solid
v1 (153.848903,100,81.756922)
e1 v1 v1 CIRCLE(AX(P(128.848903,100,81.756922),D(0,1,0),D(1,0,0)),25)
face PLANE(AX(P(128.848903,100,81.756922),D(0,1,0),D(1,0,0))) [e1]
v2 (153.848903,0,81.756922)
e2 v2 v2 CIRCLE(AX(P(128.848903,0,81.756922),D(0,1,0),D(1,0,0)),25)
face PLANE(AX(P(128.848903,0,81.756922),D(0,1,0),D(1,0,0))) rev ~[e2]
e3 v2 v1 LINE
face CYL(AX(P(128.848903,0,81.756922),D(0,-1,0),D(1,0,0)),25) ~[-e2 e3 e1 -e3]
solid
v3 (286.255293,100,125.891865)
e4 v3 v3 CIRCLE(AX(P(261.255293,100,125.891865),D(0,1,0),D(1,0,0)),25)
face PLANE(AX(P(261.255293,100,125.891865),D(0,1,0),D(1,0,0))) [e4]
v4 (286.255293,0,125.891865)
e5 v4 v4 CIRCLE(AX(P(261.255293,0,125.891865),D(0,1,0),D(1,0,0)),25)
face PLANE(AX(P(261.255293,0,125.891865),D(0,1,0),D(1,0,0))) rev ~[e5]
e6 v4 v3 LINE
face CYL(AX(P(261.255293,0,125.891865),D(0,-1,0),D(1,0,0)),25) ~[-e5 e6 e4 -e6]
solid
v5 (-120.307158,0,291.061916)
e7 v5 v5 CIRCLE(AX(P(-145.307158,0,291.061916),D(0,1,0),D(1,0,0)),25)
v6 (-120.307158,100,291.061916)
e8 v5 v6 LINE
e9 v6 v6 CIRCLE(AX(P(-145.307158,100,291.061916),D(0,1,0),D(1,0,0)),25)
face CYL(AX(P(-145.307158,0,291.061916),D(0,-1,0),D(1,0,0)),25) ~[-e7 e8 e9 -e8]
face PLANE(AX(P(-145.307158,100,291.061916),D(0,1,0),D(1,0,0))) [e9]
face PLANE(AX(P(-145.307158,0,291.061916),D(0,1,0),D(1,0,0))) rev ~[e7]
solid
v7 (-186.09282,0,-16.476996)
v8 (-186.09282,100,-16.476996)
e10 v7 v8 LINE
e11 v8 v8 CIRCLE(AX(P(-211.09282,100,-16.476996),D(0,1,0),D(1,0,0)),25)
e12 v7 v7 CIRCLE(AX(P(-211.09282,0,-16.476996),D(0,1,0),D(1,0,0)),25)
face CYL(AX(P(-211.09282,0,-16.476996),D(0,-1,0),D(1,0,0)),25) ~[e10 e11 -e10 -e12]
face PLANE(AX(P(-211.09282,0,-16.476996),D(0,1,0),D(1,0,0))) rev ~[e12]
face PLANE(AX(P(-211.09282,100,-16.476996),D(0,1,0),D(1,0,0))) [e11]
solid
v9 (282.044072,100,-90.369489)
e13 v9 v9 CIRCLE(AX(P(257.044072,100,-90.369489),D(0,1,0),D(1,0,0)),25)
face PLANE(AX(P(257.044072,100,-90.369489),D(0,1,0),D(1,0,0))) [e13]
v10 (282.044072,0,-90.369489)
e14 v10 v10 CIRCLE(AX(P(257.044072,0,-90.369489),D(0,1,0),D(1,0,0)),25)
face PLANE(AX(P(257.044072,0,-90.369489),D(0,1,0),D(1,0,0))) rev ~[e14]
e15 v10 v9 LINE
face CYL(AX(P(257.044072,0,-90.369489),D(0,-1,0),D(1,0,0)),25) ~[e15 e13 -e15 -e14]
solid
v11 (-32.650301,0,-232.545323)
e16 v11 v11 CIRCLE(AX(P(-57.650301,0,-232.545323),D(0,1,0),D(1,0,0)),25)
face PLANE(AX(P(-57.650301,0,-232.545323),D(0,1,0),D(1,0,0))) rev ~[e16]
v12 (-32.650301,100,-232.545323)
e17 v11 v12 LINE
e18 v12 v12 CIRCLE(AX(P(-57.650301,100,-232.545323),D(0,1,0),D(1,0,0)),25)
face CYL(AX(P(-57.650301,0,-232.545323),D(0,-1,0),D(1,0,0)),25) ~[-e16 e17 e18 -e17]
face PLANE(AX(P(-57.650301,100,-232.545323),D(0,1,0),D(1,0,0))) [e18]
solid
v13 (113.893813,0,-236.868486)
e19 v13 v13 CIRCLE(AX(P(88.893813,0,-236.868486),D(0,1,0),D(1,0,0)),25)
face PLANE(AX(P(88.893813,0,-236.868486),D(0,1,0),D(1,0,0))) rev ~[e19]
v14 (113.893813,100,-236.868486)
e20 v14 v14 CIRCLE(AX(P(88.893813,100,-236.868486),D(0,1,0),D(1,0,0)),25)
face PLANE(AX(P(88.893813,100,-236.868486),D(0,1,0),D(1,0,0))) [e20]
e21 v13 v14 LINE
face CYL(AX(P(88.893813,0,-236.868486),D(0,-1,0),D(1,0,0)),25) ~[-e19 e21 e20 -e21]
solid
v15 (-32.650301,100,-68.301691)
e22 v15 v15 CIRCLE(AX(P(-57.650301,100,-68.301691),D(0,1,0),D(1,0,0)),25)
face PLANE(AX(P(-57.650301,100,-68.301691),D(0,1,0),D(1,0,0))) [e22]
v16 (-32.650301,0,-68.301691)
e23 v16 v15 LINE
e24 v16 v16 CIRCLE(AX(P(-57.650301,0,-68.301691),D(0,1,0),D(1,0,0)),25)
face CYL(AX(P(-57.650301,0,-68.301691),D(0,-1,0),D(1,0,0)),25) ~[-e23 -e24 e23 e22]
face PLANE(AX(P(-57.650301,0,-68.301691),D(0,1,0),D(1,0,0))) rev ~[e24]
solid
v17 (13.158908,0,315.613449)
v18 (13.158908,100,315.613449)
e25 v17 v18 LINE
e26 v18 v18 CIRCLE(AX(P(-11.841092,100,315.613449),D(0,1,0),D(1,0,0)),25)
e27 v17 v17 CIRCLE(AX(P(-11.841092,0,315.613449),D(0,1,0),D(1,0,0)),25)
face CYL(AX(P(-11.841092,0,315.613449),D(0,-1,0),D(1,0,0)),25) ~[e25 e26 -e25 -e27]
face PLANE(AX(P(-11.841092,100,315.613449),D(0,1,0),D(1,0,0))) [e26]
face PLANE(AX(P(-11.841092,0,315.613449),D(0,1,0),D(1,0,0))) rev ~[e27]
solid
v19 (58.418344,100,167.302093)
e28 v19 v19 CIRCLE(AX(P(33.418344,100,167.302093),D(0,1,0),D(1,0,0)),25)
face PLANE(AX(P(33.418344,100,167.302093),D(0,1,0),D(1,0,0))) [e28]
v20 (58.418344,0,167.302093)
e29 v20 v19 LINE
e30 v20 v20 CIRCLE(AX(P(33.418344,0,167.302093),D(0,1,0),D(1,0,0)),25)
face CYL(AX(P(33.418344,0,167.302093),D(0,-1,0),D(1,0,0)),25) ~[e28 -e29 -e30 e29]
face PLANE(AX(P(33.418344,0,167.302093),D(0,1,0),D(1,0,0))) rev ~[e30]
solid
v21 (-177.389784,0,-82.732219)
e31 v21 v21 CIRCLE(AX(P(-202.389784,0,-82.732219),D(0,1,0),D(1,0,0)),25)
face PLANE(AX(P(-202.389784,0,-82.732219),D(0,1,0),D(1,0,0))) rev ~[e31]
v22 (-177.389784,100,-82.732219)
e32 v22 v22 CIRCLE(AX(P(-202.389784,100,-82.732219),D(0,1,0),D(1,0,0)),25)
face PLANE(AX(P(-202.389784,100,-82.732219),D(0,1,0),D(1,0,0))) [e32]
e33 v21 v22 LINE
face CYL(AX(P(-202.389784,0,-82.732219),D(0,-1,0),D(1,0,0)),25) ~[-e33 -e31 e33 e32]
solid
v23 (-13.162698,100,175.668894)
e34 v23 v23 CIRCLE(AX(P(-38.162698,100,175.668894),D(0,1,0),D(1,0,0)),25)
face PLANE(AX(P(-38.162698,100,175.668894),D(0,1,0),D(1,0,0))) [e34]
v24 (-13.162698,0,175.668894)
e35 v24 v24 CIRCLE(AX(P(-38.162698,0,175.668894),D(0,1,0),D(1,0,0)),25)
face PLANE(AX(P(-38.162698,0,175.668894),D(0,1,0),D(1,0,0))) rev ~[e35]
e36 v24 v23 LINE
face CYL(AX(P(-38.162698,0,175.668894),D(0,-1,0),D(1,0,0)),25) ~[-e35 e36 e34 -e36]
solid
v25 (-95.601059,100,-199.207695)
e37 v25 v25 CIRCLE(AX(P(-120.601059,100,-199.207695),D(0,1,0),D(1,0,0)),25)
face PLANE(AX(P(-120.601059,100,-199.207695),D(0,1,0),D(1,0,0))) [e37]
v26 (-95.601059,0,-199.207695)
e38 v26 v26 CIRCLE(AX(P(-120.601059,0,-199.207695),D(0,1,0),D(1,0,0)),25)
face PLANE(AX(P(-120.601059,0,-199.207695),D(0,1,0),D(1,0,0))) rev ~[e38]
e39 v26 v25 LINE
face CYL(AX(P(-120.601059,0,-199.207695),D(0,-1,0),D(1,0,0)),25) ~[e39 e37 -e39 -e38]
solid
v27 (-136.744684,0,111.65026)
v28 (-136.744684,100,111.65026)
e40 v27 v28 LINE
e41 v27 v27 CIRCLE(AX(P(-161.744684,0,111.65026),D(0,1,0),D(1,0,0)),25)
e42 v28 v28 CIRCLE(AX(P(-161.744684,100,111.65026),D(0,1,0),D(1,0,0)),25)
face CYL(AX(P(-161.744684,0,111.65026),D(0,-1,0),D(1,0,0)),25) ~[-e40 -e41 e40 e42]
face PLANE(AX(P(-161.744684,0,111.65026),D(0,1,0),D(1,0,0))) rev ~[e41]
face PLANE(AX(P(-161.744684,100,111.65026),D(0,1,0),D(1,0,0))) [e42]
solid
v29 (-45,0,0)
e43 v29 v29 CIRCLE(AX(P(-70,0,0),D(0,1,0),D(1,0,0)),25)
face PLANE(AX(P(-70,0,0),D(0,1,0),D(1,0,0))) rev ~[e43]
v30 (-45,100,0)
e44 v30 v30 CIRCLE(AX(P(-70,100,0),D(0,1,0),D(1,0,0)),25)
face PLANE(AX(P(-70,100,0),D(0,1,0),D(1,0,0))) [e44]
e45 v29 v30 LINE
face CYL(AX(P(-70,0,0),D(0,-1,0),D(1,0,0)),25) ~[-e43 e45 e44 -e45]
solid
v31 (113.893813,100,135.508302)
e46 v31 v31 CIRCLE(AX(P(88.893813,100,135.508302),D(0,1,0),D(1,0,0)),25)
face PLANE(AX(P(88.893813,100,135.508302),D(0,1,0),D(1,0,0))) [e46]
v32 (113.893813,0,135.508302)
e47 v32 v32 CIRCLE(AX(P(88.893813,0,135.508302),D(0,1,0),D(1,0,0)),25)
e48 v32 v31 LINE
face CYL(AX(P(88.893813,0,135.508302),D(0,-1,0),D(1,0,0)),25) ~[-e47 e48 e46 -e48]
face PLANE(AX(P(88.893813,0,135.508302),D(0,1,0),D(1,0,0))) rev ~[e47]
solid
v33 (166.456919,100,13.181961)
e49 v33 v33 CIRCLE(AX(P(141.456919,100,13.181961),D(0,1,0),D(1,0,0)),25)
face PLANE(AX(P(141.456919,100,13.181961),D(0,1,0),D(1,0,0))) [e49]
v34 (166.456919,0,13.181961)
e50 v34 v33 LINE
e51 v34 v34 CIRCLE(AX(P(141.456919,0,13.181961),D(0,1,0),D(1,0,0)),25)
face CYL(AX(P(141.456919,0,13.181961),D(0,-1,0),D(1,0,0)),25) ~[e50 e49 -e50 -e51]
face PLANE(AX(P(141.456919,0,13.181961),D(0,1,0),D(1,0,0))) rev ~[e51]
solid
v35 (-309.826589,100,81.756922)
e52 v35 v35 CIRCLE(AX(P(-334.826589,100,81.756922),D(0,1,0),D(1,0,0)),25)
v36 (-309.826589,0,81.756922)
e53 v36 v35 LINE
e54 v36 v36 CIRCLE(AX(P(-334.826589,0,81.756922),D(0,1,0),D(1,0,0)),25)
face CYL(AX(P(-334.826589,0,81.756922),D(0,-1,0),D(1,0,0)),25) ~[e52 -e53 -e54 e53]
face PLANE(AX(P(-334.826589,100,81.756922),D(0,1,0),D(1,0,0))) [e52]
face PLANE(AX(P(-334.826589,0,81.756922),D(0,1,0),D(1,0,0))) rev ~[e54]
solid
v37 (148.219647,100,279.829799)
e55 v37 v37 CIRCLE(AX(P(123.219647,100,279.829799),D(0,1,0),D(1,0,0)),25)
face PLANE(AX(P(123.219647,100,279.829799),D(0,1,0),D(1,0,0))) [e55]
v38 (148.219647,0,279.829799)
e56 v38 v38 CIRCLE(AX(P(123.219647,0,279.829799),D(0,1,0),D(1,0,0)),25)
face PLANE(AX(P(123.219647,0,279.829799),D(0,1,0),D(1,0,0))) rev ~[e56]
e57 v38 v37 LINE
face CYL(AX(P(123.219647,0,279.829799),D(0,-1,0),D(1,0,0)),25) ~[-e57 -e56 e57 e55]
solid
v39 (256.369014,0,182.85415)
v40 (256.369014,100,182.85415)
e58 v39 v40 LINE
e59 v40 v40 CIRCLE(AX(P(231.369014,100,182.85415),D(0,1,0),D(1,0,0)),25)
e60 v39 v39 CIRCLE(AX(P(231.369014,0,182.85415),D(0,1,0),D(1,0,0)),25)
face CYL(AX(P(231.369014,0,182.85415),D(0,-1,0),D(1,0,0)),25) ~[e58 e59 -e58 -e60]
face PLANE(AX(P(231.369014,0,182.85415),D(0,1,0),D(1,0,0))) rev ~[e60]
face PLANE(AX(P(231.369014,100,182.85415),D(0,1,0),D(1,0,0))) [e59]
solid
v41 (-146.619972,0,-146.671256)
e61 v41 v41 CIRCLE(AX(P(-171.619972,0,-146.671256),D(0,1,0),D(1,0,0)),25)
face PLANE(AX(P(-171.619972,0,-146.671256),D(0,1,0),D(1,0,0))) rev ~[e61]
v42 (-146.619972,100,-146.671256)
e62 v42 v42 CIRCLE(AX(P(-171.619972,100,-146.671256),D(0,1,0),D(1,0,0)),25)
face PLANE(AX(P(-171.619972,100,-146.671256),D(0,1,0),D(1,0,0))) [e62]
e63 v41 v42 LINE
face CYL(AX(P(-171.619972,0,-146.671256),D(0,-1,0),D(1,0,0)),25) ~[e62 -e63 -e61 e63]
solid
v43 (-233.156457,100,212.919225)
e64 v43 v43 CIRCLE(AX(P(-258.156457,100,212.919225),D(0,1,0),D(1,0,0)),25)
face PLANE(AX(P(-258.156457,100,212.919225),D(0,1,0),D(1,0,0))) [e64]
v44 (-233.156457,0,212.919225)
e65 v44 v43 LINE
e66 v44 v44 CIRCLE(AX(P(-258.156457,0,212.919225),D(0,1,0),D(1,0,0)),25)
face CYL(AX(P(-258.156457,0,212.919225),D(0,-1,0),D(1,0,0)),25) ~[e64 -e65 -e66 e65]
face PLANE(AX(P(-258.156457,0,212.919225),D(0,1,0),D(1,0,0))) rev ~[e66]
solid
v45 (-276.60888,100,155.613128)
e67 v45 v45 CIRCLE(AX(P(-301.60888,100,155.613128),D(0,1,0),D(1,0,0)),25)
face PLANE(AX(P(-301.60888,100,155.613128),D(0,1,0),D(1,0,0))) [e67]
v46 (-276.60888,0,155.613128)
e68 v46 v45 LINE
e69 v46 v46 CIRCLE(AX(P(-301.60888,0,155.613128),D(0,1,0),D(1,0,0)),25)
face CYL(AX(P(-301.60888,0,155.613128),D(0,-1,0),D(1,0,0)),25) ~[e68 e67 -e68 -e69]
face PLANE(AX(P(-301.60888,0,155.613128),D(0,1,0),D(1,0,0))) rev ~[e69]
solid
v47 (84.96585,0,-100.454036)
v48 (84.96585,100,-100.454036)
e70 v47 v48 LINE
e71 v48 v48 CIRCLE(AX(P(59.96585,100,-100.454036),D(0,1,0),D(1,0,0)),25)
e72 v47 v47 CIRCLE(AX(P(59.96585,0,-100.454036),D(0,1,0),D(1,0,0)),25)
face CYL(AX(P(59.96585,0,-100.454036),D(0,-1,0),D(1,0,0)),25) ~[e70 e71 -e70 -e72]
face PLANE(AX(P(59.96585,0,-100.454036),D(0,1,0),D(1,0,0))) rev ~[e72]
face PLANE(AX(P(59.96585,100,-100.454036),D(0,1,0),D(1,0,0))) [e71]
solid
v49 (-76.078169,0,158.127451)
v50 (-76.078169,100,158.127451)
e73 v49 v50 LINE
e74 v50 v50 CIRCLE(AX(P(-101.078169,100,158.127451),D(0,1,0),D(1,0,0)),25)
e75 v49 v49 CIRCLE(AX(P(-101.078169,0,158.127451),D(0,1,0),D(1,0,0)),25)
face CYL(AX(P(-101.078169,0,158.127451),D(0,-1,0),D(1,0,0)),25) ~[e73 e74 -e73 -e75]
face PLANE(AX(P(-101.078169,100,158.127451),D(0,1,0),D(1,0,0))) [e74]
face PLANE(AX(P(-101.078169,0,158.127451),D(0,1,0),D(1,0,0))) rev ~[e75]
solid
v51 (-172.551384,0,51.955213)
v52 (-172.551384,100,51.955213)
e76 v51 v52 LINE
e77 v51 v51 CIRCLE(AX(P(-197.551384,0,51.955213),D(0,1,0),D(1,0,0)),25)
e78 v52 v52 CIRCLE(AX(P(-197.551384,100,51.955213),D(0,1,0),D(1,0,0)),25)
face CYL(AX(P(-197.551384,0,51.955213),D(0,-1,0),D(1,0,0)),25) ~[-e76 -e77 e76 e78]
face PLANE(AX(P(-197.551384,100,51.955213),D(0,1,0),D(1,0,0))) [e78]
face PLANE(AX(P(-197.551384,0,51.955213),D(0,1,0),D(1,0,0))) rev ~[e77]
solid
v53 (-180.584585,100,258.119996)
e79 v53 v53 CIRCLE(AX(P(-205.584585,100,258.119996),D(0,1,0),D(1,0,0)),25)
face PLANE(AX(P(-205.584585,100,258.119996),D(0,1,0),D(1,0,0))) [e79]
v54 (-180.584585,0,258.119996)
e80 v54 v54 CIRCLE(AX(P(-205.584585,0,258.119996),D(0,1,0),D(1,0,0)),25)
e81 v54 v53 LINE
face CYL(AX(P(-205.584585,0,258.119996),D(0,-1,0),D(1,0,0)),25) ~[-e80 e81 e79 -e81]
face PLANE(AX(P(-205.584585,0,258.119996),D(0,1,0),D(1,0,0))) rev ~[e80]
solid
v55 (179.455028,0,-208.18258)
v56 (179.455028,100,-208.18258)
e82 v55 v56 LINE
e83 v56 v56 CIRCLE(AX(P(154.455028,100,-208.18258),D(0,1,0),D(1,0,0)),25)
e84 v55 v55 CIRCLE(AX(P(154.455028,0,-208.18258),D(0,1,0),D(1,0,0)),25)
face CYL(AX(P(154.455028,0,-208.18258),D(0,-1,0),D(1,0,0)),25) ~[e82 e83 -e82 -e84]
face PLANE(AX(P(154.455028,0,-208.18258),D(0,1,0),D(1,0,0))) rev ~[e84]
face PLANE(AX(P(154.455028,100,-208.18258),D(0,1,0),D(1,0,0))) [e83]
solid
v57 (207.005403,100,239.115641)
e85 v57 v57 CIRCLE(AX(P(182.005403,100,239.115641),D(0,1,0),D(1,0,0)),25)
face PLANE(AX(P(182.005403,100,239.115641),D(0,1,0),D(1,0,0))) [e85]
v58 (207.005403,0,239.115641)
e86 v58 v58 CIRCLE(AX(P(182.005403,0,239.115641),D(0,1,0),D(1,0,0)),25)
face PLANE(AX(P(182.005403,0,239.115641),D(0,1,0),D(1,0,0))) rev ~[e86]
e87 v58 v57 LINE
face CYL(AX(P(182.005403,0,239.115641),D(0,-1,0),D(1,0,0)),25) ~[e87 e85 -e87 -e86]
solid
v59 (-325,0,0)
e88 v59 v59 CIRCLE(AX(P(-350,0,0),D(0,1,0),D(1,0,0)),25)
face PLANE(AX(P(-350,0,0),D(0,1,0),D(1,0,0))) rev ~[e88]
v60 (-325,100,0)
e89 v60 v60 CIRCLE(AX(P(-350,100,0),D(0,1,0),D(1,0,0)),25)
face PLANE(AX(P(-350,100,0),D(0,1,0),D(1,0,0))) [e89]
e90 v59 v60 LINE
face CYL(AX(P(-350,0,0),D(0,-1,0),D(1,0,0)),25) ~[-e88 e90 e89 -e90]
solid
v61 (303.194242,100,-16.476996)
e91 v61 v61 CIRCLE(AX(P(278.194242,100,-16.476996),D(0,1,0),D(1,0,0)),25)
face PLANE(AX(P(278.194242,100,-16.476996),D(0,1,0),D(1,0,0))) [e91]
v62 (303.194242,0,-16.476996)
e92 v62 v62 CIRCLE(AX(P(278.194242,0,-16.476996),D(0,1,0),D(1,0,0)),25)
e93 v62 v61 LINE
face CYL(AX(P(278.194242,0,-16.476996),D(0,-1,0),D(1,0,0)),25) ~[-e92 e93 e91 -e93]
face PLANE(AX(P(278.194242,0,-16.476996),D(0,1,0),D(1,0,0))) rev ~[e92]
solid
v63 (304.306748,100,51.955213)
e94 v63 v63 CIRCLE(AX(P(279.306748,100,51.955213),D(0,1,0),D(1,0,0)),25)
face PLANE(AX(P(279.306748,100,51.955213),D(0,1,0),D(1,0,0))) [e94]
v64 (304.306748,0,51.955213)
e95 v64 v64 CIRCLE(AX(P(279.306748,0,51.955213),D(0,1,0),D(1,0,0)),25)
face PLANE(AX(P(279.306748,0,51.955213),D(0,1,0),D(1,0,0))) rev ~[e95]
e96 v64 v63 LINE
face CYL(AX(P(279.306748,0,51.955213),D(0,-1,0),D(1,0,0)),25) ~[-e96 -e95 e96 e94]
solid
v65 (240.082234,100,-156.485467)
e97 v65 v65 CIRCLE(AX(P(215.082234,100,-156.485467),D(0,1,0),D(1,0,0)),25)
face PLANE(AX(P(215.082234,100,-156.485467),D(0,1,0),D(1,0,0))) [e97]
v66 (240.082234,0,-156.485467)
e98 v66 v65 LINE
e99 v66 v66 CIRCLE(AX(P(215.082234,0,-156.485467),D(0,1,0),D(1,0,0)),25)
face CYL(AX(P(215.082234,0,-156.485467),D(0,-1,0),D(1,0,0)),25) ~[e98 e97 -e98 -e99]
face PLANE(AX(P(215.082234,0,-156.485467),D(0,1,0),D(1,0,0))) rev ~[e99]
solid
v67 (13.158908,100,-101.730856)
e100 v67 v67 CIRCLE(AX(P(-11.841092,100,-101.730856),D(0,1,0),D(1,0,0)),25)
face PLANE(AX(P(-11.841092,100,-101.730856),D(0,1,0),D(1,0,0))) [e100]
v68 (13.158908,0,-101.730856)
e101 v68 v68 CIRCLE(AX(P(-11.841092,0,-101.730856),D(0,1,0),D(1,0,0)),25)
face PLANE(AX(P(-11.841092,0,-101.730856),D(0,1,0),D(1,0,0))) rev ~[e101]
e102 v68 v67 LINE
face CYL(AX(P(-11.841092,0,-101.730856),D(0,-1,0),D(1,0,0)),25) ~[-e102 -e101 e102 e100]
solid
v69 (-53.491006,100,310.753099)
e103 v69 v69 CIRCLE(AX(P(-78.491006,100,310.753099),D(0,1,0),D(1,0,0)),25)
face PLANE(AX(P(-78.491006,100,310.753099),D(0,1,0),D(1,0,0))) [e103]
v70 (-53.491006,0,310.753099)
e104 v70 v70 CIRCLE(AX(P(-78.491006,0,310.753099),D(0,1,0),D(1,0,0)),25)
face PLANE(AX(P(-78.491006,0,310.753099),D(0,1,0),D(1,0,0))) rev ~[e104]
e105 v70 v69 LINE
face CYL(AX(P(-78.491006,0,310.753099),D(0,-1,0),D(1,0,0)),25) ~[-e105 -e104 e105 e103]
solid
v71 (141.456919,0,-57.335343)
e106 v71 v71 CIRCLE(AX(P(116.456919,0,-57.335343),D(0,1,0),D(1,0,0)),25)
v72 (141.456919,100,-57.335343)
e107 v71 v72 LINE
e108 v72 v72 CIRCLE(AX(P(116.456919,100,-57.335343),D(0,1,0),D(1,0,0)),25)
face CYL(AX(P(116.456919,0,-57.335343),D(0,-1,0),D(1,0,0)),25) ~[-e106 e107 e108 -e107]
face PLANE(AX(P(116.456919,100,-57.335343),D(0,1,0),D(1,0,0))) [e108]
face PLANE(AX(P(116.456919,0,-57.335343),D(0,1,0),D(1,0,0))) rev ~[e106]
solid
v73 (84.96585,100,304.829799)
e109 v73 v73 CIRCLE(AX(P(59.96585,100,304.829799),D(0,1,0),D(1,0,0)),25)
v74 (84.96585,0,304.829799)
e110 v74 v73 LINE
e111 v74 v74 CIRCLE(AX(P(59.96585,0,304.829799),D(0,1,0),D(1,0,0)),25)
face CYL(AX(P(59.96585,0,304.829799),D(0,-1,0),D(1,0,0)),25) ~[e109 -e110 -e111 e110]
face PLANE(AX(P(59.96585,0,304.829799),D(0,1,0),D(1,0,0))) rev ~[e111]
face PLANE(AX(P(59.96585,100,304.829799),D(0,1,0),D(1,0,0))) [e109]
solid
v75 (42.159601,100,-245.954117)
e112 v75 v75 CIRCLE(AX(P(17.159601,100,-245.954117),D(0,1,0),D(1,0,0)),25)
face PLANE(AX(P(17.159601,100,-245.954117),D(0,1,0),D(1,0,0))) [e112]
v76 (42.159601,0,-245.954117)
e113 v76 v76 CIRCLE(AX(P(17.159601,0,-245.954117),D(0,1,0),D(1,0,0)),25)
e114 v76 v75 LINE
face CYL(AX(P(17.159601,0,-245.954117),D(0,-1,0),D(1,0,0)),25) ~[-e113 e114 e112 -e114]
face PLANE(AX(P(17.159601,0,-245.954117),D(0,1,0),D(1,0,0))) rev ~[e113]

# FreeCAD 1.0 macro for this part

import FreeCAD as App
import Part
import Sketcher

doc = App.newDocument("Part")
body = doc.addObject("PartDesign::Body", "Body")

# Sketch on XZ plane
sketch1 = body.newObject("Sketcher::SketchObject", "Sketch")
sketch1.AttachmentSupport = (doc.getObject("XZ_Plane"), [""])
sketch1.MapMode = "FlatFace"
sketch1.addGeometry(Part.Circle(App.Vector(-350, 0, 0), App.Vector(0, 0, 1), 25), False)
sketch1.addConstraint([
    Sketcher.Constraint("PointOnObject", 0, 3, -1),
    Sketcher.Constraint("Diameter", 0, 50.0),
    Sketcher.Constraint("DistanceX", 0, 3, -1, 1, 350.0),
])
pad1 = body.newObject("PartDesign::Pad", "Pad")
pad1.Profile = sketch1
pad1.Length = 100
pad1.Reversed = True
body2 = doc.addObject("PartDesign::Body", "Body001")

# Sketch on XZ plane
sketch2 = body2.newObject("Sketcher::SketchObject", "Sketch001")
sketch2.AttachmentSupport = (doc.getObject("XZ_Plane001"), [""])
sketch2.MapMode = "FlatFace"
sketch2.addGeometry(Part.Circle(App.Vector(-70, 0, 0), App.Vector(0, 0, 1), 25), False)
sketch2.addConstraint([
    Sketcher.Constraint("PointOnObject", 0, 3, -1),
    Sketcher.Constraint("Diameter", 0, 50.0),
    Sketcher.Constraint("DistanceX", 0, 3, -1, 1, 70.0),
])
pad2 = body2.newObject("PartDesign::Pad", "Pad001")
pad2.Profile = sketch2
pad2.Length = 100
pad2.Reversed = True
body3 = doc.addObject("PartDesign::Body", "Body002")

# Sketch on XZ plane
sketch3 = body3.newObject("Sketcher::SketchObject", "Sketch002")
sketch3.AttachmentSupport = (doc.getObject("XZ_Plane002"), [""])
sketch3.MapMode = "FlatFace"
sketch3.addGeometry(Part.Circle(App.Vector(-57.650301, -68.301691, 0), App.Vector(0, 0, 1), 25), False)
sketch3.addConstraint([
    Sketcher.Constraint("Diameter", 0, 50.0),
    Sketcher.Constraint("DistanceX", 0, 3, -1, 1, 57.650301),
    Sketcher.Constraint("DistanceY", 0, 3, -1, 1, 68.301691),
])
pad3 = body3.newObject("PartDesign::Pad", "Pad002")
pad3.Profile = sketch3
pad3.Length = 100
pad3.Reversed = True
body4 = doc.addObject("PartDesign::Body", "Body003")

# Sketch on XZ plane
sketch4 = body4.newObject("Sketcher::SketchObject", "Sketch003")
sketch4.AttachmentSupport = (doc.getObject("XZ_Plane003"), [""])
sketch4.MapMode = "FlatFace"
sketch4.addGeometry(Part.Circle(App.Vector(-11.841092, -101.730856, 0), App.Vector(0, 0, 1), 25), False)
sketch4.addConstraint([
    Sketcher.Constraint("Diameter", 0, 50.0),
    Sketcher.Constraint("DistanceX", 0, 3, -1, 1, 11.841092),
    Sketcher.Constraint("DistanceY", 0, 3, -1, 1, 101.730856),
])
pad4 = body4.newObject("PartDesign::Pad", "Pad003")
pad4.Profile = sketch4
pad4.Length = 100
pad4.Reversed = True
body5 = doc.addObject("PartDesign::Body", "Body004")

# Sketch on XZ plane
sketch5 = body5.newObject("Sketcher::SketchObject", "Sketch004")
sketch5.AttachmentSupport = (doc.getObject("XZ_Plane004"), [""])
sketch5.MapMode = "FlatFace"
sketch5.addGeometry(Part.Circle(App.Vector(59.96585, -100.454036, 0), App.Vector(0, 0, 1), 25), False)
sketch5.addConstraint([
    Sketcher.Constraint("Diameter", 0, 50.0),
    Sketcher.Constraint("DistanceX", -1, 1, 0, 3, 59.96585),
    Sketcher.Constraint("DistanceY", 0, 3, -1, 1, 100.454036),
])
pad5 = body5.newObject("PartDesign::Pad", "Pad004")
pad5.Profile = sketch5
pad5.Length = 100
pad5.Reversed = True
body6 = doc.addObject("PartDesign::Body", "Body005")

# Sketch on XZ plane
sketch6 = body6.newObject("Sketcher::SketchObject", "Sketch005")
sketch6.AttachmentSupport = (doc.getObject("XZ_Plane005"), [""])
sketch6.MapMode = "FlatFace"
sketch6.addGeometry(Part.Circle(App.Vector(116.456919, -57.335343, 0), App.Vector(0, 0, 1), 25), False)
sketch6.addConstraint([
    Sketcher.Constraint("Diameter", 0, 50.0),
    Sketcher.Constraint("DistanceX", -1, 1, 0, 3, 116.456919),
    Sketcher.Constraint("DistanceY", 0, 3, -1, 1, 57.335343),
])
pad6 = body6.newObject("PartDesign::Pad", "Pad005")
pad6.Profile = sketch6
pad6.Length = 100
pad6.Reversed = True
body7 = doc.addObject("PartDesign::Body", "Body006")

# Sketch on XZ plane
sketch7 = body7.newObject("Sketcher::SketchObject", "Sketch006")
sketch7.AttachmentSupport = (doc.getObject("XZ_Plane006"), [""])
sketch7.MapMode = "FlatFace"
sketch7.addGeometry(Part.Circle(App.Vector(141.456919, 13.181961, 0), App.Vector(0, 0, 1), 25), False)
sketch7.addConstraint([
    Sketcher.Constraint("Diameter", 0, 50.0),
    Sketcher.Constraint("DistanceX", -1, 1, 0, 3, 141.456919),
    Sketcher.Constraint("DistanceY", -1, 1, 0, 3, 13.181961),
])
pad7 = body7.newObject("PartDesign::Pad", "Pad006")
pad7.Profile = sketch7
pad7.Length = 100
pad7.Reversed = True
body8 = doc.addObject("PartDesign::Body", "Body007")

# Sketch on XZ plane
sketch8 = body8.newObject("Sketcher::SketchObject", "Sketch007")
sketch8.AttachmentSupport = (doc.getObject("XZ_Plane007"), [""])
sketch8.MapMode = "FlatFace"
sketch8.addGeometry(Part.Circle(App.Vector(128.848903, 81.756922, 0), App.Vector(0, 0, 1), 25), False)
sketch8.addConstraint([
    Sketcher.Constraint("Diameter", 0, 50.0),
    Sketcher.Constraint("DistanceX", -1, 1, 0, 3, 128.848903),
    Sketcher.Constraint("DistanceY", -1, 1, 0, 3, 81.756922),
])
pad8 = body8.newObject("PartDesign::Pad", "Pad007")
pad8.Profile = sketch8
pad8.Length = 100
pad8.Reversed = True
body9 = doc.addObject("PartDesign::Body", "Body008")

# Sketch on XZ plane
sketch9 = body9.newObject("Sketcher::SketchObject", "Sketch008")
sketch9.AttachmentSupport = (doc.getObject("XZ_Plane008"), [""])
sketch9.MapMode = "FlatFace"
sketch9.addGeometry(Part.Circle(App.Vector(88.893813, 135.508302, 0), App.Vector(0, 0, 1), 25), False)
sketch9.addConstraint([
    Sketcher.Constraint("Diameter", 0, 50.0),
    Sketcher.Constraint("DistanceX", -1, 1, 0, 3, 88.893813),
    Sketcher.Constraint("DistanceY", -1, 1, 0, 3, 135.508302),
])
pad9 = body9.newObject("PartDesign::Pad", "Pad008")
pad9.Profile = sketch9
pad9.Length = 100
pad9.Reversed = True
body10 = doc.addObject("PartDesign::Body", "Body009")

# Sketch on XZ plane
sketch10 = body10.newObject("Sketcher::SketchObject", "Sketch009")
sketch10.AttachmentSupport = (doc.getObject("XZ_Plane009"), [""])
sketch10.MapMode = "FlatFace"
sketch10.addGeometry(Part.Circle(App.Vector(33.418344, 167.302093, 0), App.Vector(0, 0, 1), 25), False)
sketch10.addConstraint([
    Sketcher.Constraint("Diameter", 0, 50.0),
    Sketcher.Constraint("DistanceX", -1, 1, 0, 3, 33.418344),
    Sketcher.Constraint("DistanceY", -1, 1, 0, 3, 167.302093),
])
pad10 = body10.newObject("PartDesign::Pad", "Pad009")
pad10.Profile = sketch10
pad10.Length = 100
pad10.Reversed = True
body11 = doc.addObject("PartDesign::Body", "Body010")

# Sketch on XZ plane
sketch11 = body11.newObject("Sketcher::SketchObject", "Sketch010")
sketch11.AttachmentSupport = (doc.getObject("XZ_Plane010"), [""])
sketch11.MapMode = "FlatFace"
sketch11.addGeometry(Part.Circle(App.Vector(-38.162698, 175.668894, 0), App.Vector(0, 0, 1), 25), False)
sketch11.addConstraint([
    Sketcher.Constraint("Diameter", 0, 50.0),
    Sketcher.Constraint("DistanceX", 0, 3, -1, 1, 38.162698),
    Sketcher.Constraint("DistanceY", -1, 1, 0, 3, 175.668894),
])
pad11 = body11.newObject("PartDesign::Pad", "Pad010")
pad11.Profile = sketch11
pad11.Length = 100
pad11.Reversed = True
body12 = doc.addObject("PartDesign::Body", "Body011")

# Sketch on XZ plane
sketch12 = body12.newObject("Sketcher::SketchObject", "Sketch011")
sketch12.AttachmentSupport = (doc.getObject("XZ_Plane011"), [""])
sketch12.MapMode = "FlatFace"
sketch12.addGeometry(Part.Circle(App.Vector(-101.078169, 158.127451, 0), App.Vector(0, 0, 1), 25), False)
sketch12.addConstraint([
    Sketcher.Constraint("Diameter", 0, 50.0),
    Sketcher.Constraint("DistanceX", 0, 3, -1, 1, 101.078169),
    Sketcher.Constraint("DistanceY", -1, 1, 0, 3, 158.127451),
])
pad12 = body12.newObject("PartDesign::Pad", "Pad011")
pad12.Profile = sketch12
pad12.Length = 100
pad12.Reversed = True
body13 = doc.addObject("PartDesign::Body", "Body012")

# Sketch on XZ plane
sketch13 = body13.newObject("Sketcher::SketchObject", "Sketch012")
sketch13.AttachmentSupport = (doc.getObject("XZ_Plane012"), [""])
sketch13.MapMode = "FlatFace"
sketch13.addGeometry(Part.Circle(App.Vector(-161.744684, 111.65026, 0), App.Vector(0, 0, 1), 25), False)
sketch13.addConstraint([
    Sketcher.Constraint("Diameter", 0, 50.0),
    Sketcher.Constraint("DistanceY", -1, 1, 0, 3, 111.65026),
    Sketcher.Constraint("DistanceX", 0, 3, -1, 1, 161.744684),
])
pad13 = body13.newObject("PartDesign::Pad", "Pad012")
pad13.Profile = sketch13
pad13.Length = 100
pad13.Reversed = True
body14 = doc.addObject("PartDesign::Body", "Body013")

# Sketch on XZ plane
sketch14 = body14.newObject("Sketcher::SketchObject", "Sketch013")
sketch14.AttachmentSupport = (doc.getObject("XZ_Plane013"), [""])
sketch14.MapMode = "FlatFace"
sketch14.addGeometry(Part.Circle(App.Vector(-197.551384, 51.955213, 0), App.Vector(0, 0, 1), 25), False)
sketch14.addConstraint([
    Sketcher.Constraint("Diameter", 0, 50.0),
    Sketcher.Constraint("DistanceX", 0, 3, -1, 1, 197.551384),
    Sketcher.Constraint("DistanceY", -1, 1, 0, 3, 51.955213),
])
pad14 = body14.newObject("PartDesign::Pad", "Pad013")
pad14.Profile = sketch14
pad14.Length = 100
pad14.Reversed = True
body15 = doc.addObject("PartDesign::Body", "Body014")

# Sketch on XZ plane
sketch15 = body15.newObject("Sketcher::SketchObject", "Sketch014")
sketch15.AttachmentSupport = (doc.getObject("XZ_Plane014"), [""])
sketch15.MapMode = "FlatFace"
sketch15.addGeometry(Part.Circle(App.Vector(-211.09282, -16.476996, 0), App.Vector(0, 0, 1), 25), False)
sketch15.addConstraint([
    Sketcher.Constraint("Diameter", 0, 50.0),
    Sketcher.Constraint("DistanceX", 0, 3, -1, 1, 211.09282),
    Sketcher.Constraint("DistanceY", 0, 3, -1, 1, 16.476996),
])
pad15 = body15.newObject("PartDesign::Pad", "Pad014")
pad15.Profile = sketch15
pad15.Length = 100
pad15.Reversed = True
body16 = doc.addObject("PartDesign::Body", "Body015")

# Sketch on XZ plane
sketch16 = body16.newObject("Sketcher::SketchObject", "Sketch015")
sketch16.AttachmentSupport = (doc.getObject("XZ_Plane015"), [""])
sketch16.MapMode = "FlatFace"
sketch16.addGeometry(Part.Circle(App.Vector(-202.389784, -82.732219, 0), App.Vector(0, 0, 1), 25), False)
sketch16.addConstraint([
    Sketcher.Constraint("Diameter", 0, 50.0),
    Sketcher.Constraint("DistanceY", 0, 3, -1, 1, 82.732219),
    Sketcher.Constraint("DistanceX", 0, 3, -1, 1, 202.389784),
])
pad16 = body16.newObject("PartDesign::Pad", "Pad015")
pad16.Profile = sketch16
pad16.Length = 100
pad16.Reversed = True
body17 = doc.addObject("PartDesign::Body", "Body016")

# Sketch on XZ plane
sketch17 = body17.newObject("Sketcher::SketchObject", "Sketch016")
sketch17.AttachmentSupport = (doc.getObject("XZ_Plane016"), [""])
sketch17.MapMode = "FlatFace"
sketch17.addGeometry(Part.Circle(App.Vector(-171.619972, -146.671256, 0), App.Vector(0, 0, 1), 25), False)
sketch17.addConstraint([
    Sketcher.Constraint("Diameter", 0, 50.0),
    Sketcher.Constraint("DistanceX", 0, 3, -1, 1, 171.619972),
    Sketcher.Constraint("DistanceY", 0, 3, -1, 1, 146.671256),
])
pad17 = body17.newObject("PartDesign::Pad", "Pad016")
pad17.Profile = sketch17
pad17.Length = 100
pad17.Reversed = True
body18 = doc.addObject("PartDesign::Body", "Body017")

# Sketch on XZ plane
sketch18 = body18.newObject("Sketcher::SketchObject", "Sketch017")
sketch18.AttachmentSupport = (doc.getObject("XZ_Plane017"), [""])
sketch18.MapMode = "FlatFace"
sketch18.addGeometry(Part.Circle(App.Vector(-120.601059, -199.207695, 0), App.Vector(0, 0, 1), 25), False)
sketch18.addConstraint([
    Sketcher.Constraint("Diameter", 0, 50.0),
    Sketcher.Constraint("DistanceX", 0, 3, -1, 1, 120.601059),
    Sketcher.Constraint("DistanceY", 0, 3, -1, 1, 199.207695),
])
pad18 = body18.newObject("PartDesign::Pad", "Pad017")
pad18.Profile = sketch18
pad18.Length = 100
pad18.Reversed = True
body19 = doc.addObject("PartDesign::Body", "Body018")

# Sketch on XZ plane
sketch19 = body19.newObject("Sketcher::SketchObject", "Sketch018")
sketch19.AttachmentSupport = (doc.getObject("XZ_Plane018"), [""])
sketch19.MapMode = "FlatFace"
sketch19.addGeometry(Part.Circle(App.Vector(-57.650301, -232.545323, 0), App.Vector(0, 0, 1), 25), False)
sketch19.addConstraint([
    Sketcher.Constraint("Diameter", 0, 50.0),
    Sketcher.Constraint("DistanceX", 0, 3, -1, 1, 57.650301),
    Sketcher.Constraint("DistanceY", 0, 3, -1, 1, 232.545323),
])
pad19 = body19.newObject("PartDesign::Pad", "Pad018")
pad19.Profile = sketch19
pad19.Length = 100
pad19.Reversed = True
body20 = doc.addObject("PartDesign::Body", "Body019")

# Sketch on XZ plane
sketch20 = body20.newObject("Sketcher::SketchObject", "Sketch019")
sketch20.AttachmentSupport = (doc.getObject("XZ_Plane019"), [""])
sketch20.MapMode = "FlatFace"
sketch20.addGeometry(Part.Circle(App.Vector(17.159601, -245.954117, 0), App.Vector(0, 0, 1), 25), False)
sketch20.addConstraint([
    Sketcher.Constraint("Diameter", 0, 50.0),
    Sketcher.Constraint("DistanceX", -1, 1, 0, 3, 17.159601),
    Sketcher.Constraint("DistanceY", 0, 3, -1, 1, 245.954117),
])
pad20 = body20.newObject("PartDesign::Pad", "Pad019")
pad20.Profile = sketch20
pad20.Length = 100
pad20.Reversed = True
body21 = doc.addObject("PartDesign::Body", "Body020")

# Sketch on XZ plane
sketch21 = body21.newObject("Sketcher::SketchObject", "Sketch020")
sketch21.AttachmentSupport = (doc.getObject("XZ_Plane020"), [""])
sketch21.MapMode = "FlatFace"
sketch21.addGeometry(Part.Circle(App.Vector(88.893813, -236.868486, 0), App.Vector(0, 0, 1), 25), False)
sketch21.addConstraint([
    Sketcher.Constraint("Diameter", 0, 50.0),
    Sketcher.Constraint("DistanceX", -1, 1, 0, 3, 88.893813),
    Sketcher.Constraint("DistanceY", 0, 3, -1, 1, 236.868486),
])
pad21 = body21.newObject("PartDesign::Pad", "Pad020")
pad21.Profile = sketch21
pad21.Length = 100
pad21.Reversed = True
body22 = doc.addObject("PartDesign::Body", "Body021")

# Sketch on XZ plane
sketch22 = body22.newObject("Sketcher::SketchObject", "Sketch021")
sketch22.AttachmentSupport = (doc.getObject("XZ_Plane021"), [""])
sketch22.MapMode = "FlatFace"
sketch22.addGeometry(Part.Circle(App.Vector(154.455028, -208.18258, 0), App.Vector(0, 0, 1), 25), False)
sketch22.addConstraint([
    Sketcher.Constraint("Diameter", 0, 50.0),
    Sketcher.Constraint("DistanceX", -1, 1, 0, 3, 154.455028),
    Sketcher.Constraint("DistanceY", 0, 3, -1, 1, 208.18258),
])
pad22 = body22.newObject("PartDesign::Pad", "Pad021")
pad22.Profile = sketch22
pad22.Length = 100
pad22.Reversed = True
body23 = doc.addObject("PartDesign::Body", "Body022")

# Sketch on XZ plane
sketch23 = body23.newObject("Sketcher::SketchObject", "Sketch022")
sketch23.AttachmentSupport = (doc.getObject("XZ_Plane022"), [""])
sketch23.MapMode = "FlatFace"
sketch23.addGeometry(Part.Circle(App.Vector(215.082234, -156.485467, 0), App.Vector(0, 0, 1), 25), False)
sketch23.addConstraint([
    Sketcher.Constraint("Diameter", 0, 50.0),
    Sketcher.Constraint("DistanceX", -1, 1, 0, 3, 215.082234),
    Sketcher.Constraint("DistanceY", 0, 3, -1, 1, 156.485467),
])
pad23 = body23.newObject("PartDesign::Pad", "Pad022")
pad23.Profile = sketch23
pad23.Length = 100
pad23.Reversed = True
body24 = doc.addObject("PartDesign::Body", "Body023")

# Sketch on XZ plane
sketch24 = body24.newObject("Sketcher::SketchObject", "Sketch023")
sketch24.AttachmentSupport = (doc.getObject("XZ_Plane023"), [""])
sketch24.MapMode = "FlatFace"
sketch24.addGeometry(Part.Circle(App.Vector(257.044072, -90.369489, 0), App.Vector(0, 0, 1), 25), False)
sketch24.addConstraint([
    Sketcher.Constraint("Diameter", 0, 50.0),
    Sketcher.Constraint("DistanceX", -1, 1, 0, 3, 257.044072),
    Sketcher.Constraint("DistanceY", 0, 3, -1, 1, 90.369489),
])
pad24 = body24.newObject("PartDesign::Pad", "Pad023")
pad24.Profile = sketch24
pad24.Length = 100
pad24.Reversed = True
body25 = doc.addObject("PartDesign::Body", "Body024")

# Sketch on XZ plane
sketch25 = body25.newObject("Sketcher::SketchObject", "Sketch024")
sketch25.AttachmentSupport = (doc.getObject("XZ_Plane024"), [""])
sketch25.MapMode = "FlatFace"
sketch25.addGeometry(Part.Circle(App.Vector(278.194242, -16.476996, 0), App.Vector(0, 0, 1), 25), False)
sketch25.addConstraint([
    Sketcher.Constraint("Diameter", 0, 50.0),
    Sketcher.Constraint("DistanceX", -1, 1, 0, 3, 278.194242),
    Sketcher.Constraint("DistanceY", 0, 3, -1, 1, 16.476996),
])
pad25 = body25.newObject("PartDesign::Pad", "Pad024")
pad25.Profile = sketch25
pad25.Length = 100
pad25.Reversed = True
body26 = doc.addObject("PartDesign::Body", "Body025")

# Sketch on XZ plane
sketch26 = body26.newObject("Sketcher::SketchObject", "Sketch025")
sketch26.AttachmentSupport = (doc.getObject("XZ_Plane025"), [""])
sketch26.MapMode = "FlatFace"
sketch26.addGeometry(Part.Circle(App.Vector(279.306748, 51.955213, 0), App.Vector(0, 0, 1), 25), False)
sketch26.addConstraint([
    Sketcher.Constraint("Diameter", 0, 50.0),
    Sketcher.Constraint("DistanceX", -1, 1, 0, 3, 279.306748),
    Sketcher.Constraint("DistanceY", -1, 1, 0, 3, 51.955213),
])
pad26 = body26.newObject("PartDesign::Pad", "Pad025")
pad26.Profile = sketch26
pad26.Length = 100
pad26.Reversed = True
body27 = doc.addObject("PartDesign::Body", "Body026")

# Sketch on XZ plane
sketch27 = body27.newObject("Sketcher::SketchObject", "Sketch026")
sketch27.AttachmentSupport = (doc.getObject("XZ_Plane026"), [""])
sketch27.MapMode = "FlatFace"
sketch27.addGeometry(Part.Circle(App.Vector(261.255293, 125.891865, 0), App.Vector(0, 0, 1), 25), False)
sketch27.addConstraint([
    Sketcher.Constraint("Diameter", 0, 50.0),
    Sketcher.Constraint("DistanceX", -1, 1, 0, 3, 261.255293),
    Sketcher.Constraint("DistanceY", -1, 1, 0, 3, 125.891865),
])
pad27 = body27.newObject("PartDesign::Pad", "Pad026")
pad27.Profile = sketch27
pad27.Length = 100
pad27.Reversed = True
body28 = doc.addObject("PartDesign::Body", "Body027")

# Sketch on XZ plane
sketch28 = body28.newObject("Sketcher::SketchObject", "Sketch027")
sketch28.AttachmentSupport = (doc.getObject("XZ_Plane027"), [""])
sketch28.MapMode = "FlatFace"
sketch28.addGeometry(Part.Circle(App.Vector(231.369014, 182.85415, 0), App.Vector(0, 0, 1), 25), False)
sketch28.addConstraint([
    Sketcher.Constraint("Diameter", 0, 50.0),
    Sketcher.Constraint("DistanceY", -1, 1, 0, 3, 182.85415),
    Sketcher.Constraint("DistanceX", -1, 1, 0, 3, 231.369014),
])
pad28 = body28.newObject("PartDesign::Pad", "Pad027")
pad28.Profile = sketch28
pad28.Length = 100
pad28.Reversed = True
body29 = doc.addObject("PartDesign::Body", "Body028")

# Sketch on XZ plane
sketch29 = body29.newObject("Sketcher::SketchObject", "Sketch028")
sketch29.AttachmentSupport = (doc.getObject("XZ_Plane028"), [""])
sketch29.MapMode = "FlatFace"
sketch29.addGeometry(Part.Circle(App.Vector(182.005403, 239.115641, 0), App.Vector(0, 0, 1), 25), False)
sketch29.addConstraint([
    Sketcher.Constraint("Diameter", 0, 50.0),
    Sketcher.Constraint("DistanceY", -1, 1, 0, 3, 239.115641),
    Sketcher.Constraint("DistanceX", -1, 1, 0, 3, 182.005403),
])
pad29 = body29.newObject("PartDesign::Pad", "Pad028")
pad29.Profile = sketch29
pad29.Length = 100
pad29.Reversed = True
body30 = doc.addObject("PartDesign::Body", "Body029")

# Sketch on XZ plane
sketch30 = body30.newObject("Sketcher::SketchObject", "Sketch029")
sketch30.AttachmentSupport = (doc.getObject("XZ_Plane029"), [""])
sketch30.MapMode = "FlatFace"
sketch30.addGeometry(Part.Circle(App.Vector(123.219647, 279.829799, 0), App.Vector(0, 0, 1), 25), False)
sketch30.addConstraint([
    Sketcher.Constraint("Diameter", 0, 50.0),
    Sketcher.Constraint("DistanceY", -1, 1, 0, 3, 279.829799),
    Sketcher.Constraint("DistanceX", -1, 1, 0, 3, 123.219647),
])
pad30 = body30.newObject("PartDesign::Pad", "Pad029")
pad30.Profile = sketch30
pad30.Length = 100
pad30.Reversed = True
body31 = doc.addObject("PartDesign::Body", "Body030")

# Sketch on XZ plane
sketch31 = body31.newObject("Sketcher::SketchObject", "Sketch030")
sketch31.AttachmentSupport = (doc.getObject("XZ_Plane030"), [""])
sketch31.MapMode = "FlatFace"
sketch31.addGeometry(Part.Circle(App.Vector(59.96585, 304.829799, 0), App.Vector(0, 0, 1), 25), False)
sketch31.addConstraint([
    Sketcher.Constraint("Diameter", 0, 50.0),
    Sketcher.Constraint("DistanceY", -1, 1, 0, 3, 304.829799),
    Sketcher.Constraint("DistanceX", -1, 1, 0, 3, 59.96585),
])
pad31 = body31.newObject("PartDesign::Pad", "Pad030")
pad31.Profile = sketch31
pad31.Length = 100
pad31.Reversed = True
body32 = doc.addObject("PartDesign::Body", "Body031")

# Sketch on XZ plane
sketch32 = body32.newObject("Sketcher::SketchObject", "Sketch031")
sketch32.AttachmentSupport = (doc.getObject("XZ_Plane031"), [""])
sketch32.MapMode = "FlatFace"
sketch32.addGeometry(Part.Circle(App.Vector(-11.841092, 315.613449, 0), App.Vector(0, 0, 1), 25), False)
sketch32.addConstraint([
    Sketcher.Constraint("Diameter", 0, 50.0),
    Sketcher.Constraint("DistanceY", -1, 1, 0, 3, 315.613449),
    Sketcher.Constraint("DistanceX", 0, 3, -1, 1, 11.841092),
])
pad32 = body32.newObject("PartDesign::Pad", "Pad031")
pad32.Profile = sketch32
pad32.Length = 100
pad32.Reversed = True
body33 = doc.addObject("PartDesign::Body", "Body032")

# Sketch on XZ plane
sketch33 = body33.newObject("Sketcher::SketchObject", "Sketch032")
sketch33.AttachmentSupport = (doc.getObject("XZ_Plane032"), [""])
sketch33.MapMode = "FlatFace"
sketch33.addGeometry(Part.Circle(App.Vector(-78.491006, 310.753099, 0), App.Vector(0, 0, 1), 25), False)
sketch33.addConstraint([
    Sketcher.Constraint("Diameter", 0, 50.0),
    Sketcher.Constraint("DistanceY", -1, 1, 0, 3, 310.753099),
    Sketcher.Constraint("DistanceX", 0, 3, -1, 1, 78.491006),
])
pad33 = body33.newObject("PartDesign::Pad", "Pad032")
pad33.Profile = sketch33
pad33.Length = 100
pad33.Reversed = True
body34 = doc.addObject("PartDesign::Body", "Body033")

# Sketch on XZ plane
sketch34 = body34.newObject("Sketcher::SketchObject", "Sketch033")
sketch34.AttachmentSupport = (doc.getObject("XZ_Plane033"), [""])
sketch34.MapMode = "FlatFace"
sketch34.addGeometry(Part.Circle(App.Vector(-145.307158, 291.061916, 0), App.Vector(0, 0, 1), 25), False)
sketch34.addConstraint([
    Sketcher.Constraint("Diameter", 0, 50.0),
    Sketcher.Constraint("DistanceX", 0, 3, -1, 1, 145.307158),
    Sketcher.Constraint("DistanceY", -1, 1, 0, 3, 291.061916),
])
pad34 = body34.newObject("PartDesign::Pad", "Pad033")
pad34.Profile = sketch34
pad34.Length = 100
pad34.Reversed = True
body35 = doc.addObject("PartDesign::Body", "Body034")

# Sketch on XZ plane
sketch35 = body35.newObject("Sketcher::SketchObject", "Sketch034")
sketch35.AttachmentSupport = (doc.getObject("XZ_Plane034"), [""])
sketch35.MapMode = "FlatFace"
sketch35.addGeometry(Part.Circle(App.Vector(-205.584585, 258.119996, 0), App.Vector(0, 0, 1), 25), False)
sketch35.addConstraint([
    Sketcher.Constraint("Diameter", 0, 50.0),
    Sketcher.Constraint("DistanceX", 0, 3, -1, 1, 205.584585),
    Sketcher.Constraint("DistanceY", -1, 1, 0, 3, 258.119996),
])
pad35 = body35.newObject("PartDesign::Pad", "Pad034")
pad35.Profile = sketch35
pad35.Length = 100
pad35.Reversed = True
body36 = doc.addObject("PartDesign::Body", "Body035")

# Sketch on XZ plane
sketch36 = body36.newObject("Sketcher::SketchObject", "Sketch035")
sketch36.AttachmentSupport = (doc.getObject("XZ_Plane035"), [""])
sketch36.MapMode = "FlatFace"
sketch36.addGeometry(Part.Circle(App.Vector(-258.156457, 212.919225, 0), App.Vector(0, 0, 1), 25), False)
sketch36.addConstraint([
    Sketcher.Constraint("Diameter", 0, 50.0),
    Sketcher.Constraint("DistanceX", 0, 3, -1, 1, 258.156457),
    Sketcher.Constraint("DistanceY", -1, 1, 0, 3, 212.919225),
])
pad36 = body36.newObject("PartDesign::Pad", "Pad035")
pad36.Profile = sketch36
pad36.Length = 100
pad36.Reversed = True
body37 = doc.addObject("PartDesign::Body", "Body036")

# Sketch on XZ plane
sketch37 = body37.newObject("Sketcher::SketchObject", "Sketch036")
sketch37.AttachmentSupport = (doc.getObject("XZ_Plane036"), [""])
sketch37.MapMode = "FlatFace"
sketch37.addGeometry(Part.Circle(App.Vector(-301.60888, 155.613128, 0), App.Vector(0, 0, 1), 25), False)
sketch37.addConstraint([
    Sketcher.Constraint("Diameter", 0, 50.0),
    Sketcher.Constraint("DistanceX", 0, 3, -1, 1, 301.60888),
    Sketcher.Constraint("DistanceY", -1, 1, 0, 3, 155.613128),
])
pad37 = body37.newObject("PartDesign::Pad", "Pad036")
pad37.Profile = sketch37
pad37.Length = 100
pad37.Reversed = True
body38 = doc.addObject("PartDesign::Body", "Body037")

# Sketch on XZ plane
sketch38 = body38.newObject("Sketcher::SketchObject", "Sketch037")
sketch38.AttachmentSupport = (doc.getObject("XZ_Plane037"), [""])
sketch38.MapMode = "FlatFace"
sketch38.addGeometry(Part.Circle(App.Vector(-334.826589, 81.756922, 0), App.Vector(0, 0, 1), 25), False)
sketch38.addConstraint([
    Sketcher.Constraint("Diameter", 0, 50.0),
    Sketcher.Constraint("DistanceX", 0, 3, -1, 1, 334.826589),
    Sketcher.Constraint("DistanceY", -1, 1, 0, 3, 81.756922),
])
pad38 = body38.newObject("PartDesign::Pad", "Pad037")
pad38.Profile = sketch38
pad38.Length = 100
pad38.Reversed = True

doc.recompute()
